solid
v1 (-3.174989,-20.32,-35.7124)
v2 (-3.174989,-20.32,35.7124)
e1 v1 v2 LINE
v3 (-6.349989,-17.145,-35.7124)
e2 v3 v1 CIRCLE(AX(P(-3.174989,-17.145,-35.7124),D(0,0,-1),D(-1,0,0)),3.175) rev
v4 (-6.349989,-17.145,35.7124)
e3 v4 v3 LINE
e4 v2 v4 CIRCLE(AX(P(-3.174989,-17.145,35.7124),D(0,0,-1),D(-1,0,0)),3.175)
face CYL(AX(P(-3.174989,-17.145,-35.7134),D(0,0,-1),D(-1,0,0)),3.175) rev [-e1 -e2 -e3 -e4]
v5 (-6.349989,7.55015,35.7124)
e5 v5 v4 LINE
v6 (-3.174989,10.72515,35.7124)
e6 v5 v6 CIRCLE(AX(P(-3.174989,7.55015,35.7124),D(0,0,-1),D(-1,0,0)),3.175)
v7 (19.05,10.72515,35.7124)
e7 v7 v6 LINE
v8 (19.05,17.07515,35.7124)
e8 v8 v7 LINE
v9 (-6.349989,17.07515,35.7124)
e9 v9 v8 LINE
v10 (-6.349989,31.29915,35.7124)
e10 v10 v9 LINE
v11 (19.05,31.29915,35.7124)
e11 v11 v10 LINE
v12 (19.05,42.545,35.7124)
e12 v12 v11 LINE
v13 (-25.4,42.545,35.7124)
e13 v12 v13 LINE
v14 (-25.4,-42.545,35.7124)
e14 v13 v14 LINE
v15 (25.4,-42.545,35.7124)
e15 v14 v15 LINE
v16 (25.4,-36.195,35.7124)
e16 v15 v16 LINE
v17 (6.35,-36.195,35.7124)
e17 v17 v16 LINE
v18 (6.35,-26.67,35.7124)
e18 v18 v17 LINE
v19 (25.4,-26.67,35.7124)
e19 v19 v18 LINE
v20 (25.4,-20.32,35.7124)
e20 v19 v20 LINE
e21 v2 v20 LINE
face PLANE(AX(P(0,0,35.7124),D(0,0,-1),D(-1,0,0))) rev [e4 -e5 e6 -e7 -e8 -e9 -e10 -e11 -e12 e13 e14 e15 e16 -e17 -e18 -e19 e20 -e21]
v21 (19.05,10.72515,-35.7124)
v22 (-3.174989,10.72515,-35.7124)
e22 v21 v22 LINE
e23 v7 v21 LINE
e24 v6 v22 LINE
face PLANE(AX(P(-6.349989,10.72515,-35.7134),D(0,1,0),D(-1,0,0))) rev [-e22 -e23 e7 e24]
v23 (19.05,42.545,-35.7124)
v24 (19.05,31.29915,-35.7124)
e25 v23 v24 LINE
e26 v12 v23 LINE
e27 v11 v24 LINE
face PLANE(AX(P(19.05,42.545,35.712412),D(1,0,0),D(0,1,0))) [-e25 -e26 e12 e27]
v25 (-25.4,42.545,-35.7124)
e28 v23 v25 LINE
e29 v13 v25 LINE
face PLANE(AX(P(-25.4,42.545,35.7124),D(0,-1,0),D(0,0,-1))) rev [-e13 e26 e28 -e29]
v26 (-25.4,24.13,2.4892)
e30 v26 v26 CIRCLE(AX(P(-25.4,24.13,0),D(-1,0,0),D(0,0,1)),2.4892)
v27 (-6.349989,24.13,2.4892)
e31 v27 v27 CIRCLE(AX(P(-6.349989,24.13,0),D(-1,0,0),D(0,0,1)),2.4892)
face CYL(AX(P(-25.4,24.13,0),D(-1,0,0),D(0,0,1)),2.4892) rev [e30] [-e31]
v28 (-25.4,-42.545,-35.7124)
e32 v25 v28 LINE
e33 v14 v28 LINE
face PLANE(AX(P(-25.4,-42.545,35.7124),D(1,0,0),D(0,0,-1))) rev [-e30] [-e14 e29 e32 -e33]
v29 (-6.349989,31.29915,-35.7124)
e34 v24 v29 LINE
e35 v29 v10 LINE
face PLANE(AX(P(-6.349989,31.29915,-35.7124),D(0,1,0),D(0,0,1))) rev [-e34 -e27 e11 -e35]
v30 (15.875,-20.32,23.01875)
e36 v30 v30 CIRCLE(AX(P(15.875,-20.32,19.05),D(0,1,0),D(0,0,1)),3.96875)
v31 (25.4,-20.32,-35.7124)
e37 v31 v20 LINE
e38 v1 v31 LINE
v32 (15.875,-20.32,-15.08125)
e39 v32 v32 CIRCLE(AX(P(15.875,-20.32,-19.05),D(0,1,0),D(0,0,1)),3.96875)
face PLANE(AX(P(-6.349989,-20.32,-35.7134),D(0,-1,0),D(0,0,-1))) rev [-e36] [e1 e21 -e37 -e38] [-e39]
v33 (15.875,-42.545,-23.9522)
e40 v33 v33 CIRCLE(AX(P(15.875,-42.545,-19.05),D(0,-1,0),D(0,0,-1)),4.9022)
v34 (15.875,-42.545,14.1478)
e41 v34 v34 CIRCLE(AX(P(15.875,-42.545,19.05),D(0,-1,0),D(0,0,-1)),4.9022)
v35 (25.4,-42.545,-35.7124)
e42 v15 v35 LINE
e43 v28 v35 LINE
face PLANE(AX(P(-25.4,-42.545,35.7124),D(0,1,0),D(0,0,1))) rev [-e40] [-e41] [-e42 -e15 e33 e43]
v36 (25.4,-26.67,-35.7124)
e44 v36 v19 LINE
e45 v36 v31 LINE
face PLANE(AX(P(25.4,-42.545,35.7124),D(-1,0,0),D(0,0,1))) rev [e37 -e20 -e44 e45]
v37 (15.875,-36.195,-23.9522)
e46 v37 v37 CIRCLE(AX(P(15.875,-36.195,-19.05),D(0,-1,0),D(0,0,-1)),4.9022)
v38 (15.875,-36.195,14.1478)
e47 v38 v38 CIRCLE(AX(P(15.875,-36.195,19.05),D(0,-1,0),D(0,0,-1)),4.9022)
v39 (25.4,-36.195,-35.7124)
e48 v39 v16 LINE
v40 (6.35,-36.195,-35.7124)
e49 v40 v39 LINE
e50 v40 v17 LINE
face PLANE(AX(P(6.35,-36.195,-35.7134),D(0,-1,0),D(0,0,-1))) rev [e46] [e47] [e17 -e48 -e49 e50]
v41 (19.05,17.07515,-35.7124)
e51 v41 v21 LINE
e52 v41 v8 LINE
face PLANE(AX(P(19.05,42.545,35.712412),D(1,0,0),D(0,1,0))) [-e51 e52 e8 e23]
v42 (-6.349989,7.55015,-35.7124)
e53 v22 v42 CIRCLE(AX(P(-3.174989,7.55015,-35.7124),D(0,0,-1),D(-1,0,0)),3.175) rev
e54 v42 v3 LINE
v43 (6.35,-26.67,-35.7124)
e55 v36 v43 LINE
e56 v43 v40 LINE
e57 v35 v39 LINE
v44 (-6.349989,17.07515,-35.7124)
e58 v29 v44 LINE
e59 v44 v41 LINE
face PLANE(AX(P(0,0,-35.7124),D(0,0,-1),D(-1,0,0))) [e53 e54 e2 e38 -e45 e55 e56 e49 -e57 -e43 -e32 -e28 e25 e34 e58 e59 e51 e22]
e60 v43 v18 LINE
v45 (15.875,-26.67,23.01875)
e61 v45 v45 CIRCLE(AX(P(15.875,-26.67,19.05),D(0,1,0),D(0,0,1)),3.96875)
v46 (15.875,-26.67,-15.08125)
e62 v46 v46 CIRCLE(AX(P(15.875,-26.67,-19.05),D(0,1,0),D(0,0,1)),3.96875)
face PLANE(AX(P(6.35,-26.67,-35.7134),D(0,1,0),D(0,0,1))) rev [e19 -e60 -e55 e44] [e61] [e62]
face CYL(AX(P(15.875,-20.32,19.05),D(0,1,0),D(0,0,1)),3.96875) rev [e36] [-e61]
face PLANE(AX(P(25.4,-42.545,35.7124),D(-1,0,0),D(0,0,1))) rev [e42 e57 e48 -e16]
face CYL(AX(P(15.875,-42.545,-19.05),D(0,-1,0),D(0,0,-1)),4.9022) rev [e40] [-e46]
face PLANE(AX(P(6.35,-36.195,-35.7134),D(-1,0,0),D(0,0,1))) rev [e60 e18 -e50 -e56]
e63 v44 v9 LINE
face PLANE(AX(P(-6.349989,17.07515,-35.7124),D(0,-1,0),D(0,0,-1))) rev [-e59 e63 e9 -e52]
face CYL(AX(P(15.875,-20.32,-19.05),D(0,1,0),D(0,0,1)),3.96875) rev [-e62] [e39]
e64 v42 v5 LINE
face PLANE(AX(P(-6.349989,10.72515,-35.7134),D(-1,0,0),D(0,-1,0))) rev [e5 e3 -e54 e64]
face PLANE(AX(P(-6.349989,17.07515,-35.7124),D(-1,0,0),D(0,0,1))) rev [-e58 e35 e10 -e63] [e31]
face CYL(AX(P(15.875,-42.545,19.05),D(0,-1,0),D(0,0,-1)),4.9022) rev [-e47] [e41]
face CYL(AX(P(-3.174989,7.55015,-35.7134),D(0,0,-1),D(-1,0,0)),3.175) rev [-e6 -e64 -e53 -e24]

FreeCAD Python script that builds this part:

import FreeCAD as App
import Part
import Sketcher

V = App.Vector
Q = App.Units.Quantity


def edges_at(feature, points):
    """Names of the edges that pass closest to the given points."""
    edges = feature.Shape.Edges
    near = lambda p: min(range(len(edges)), key=lambda i: edges[i].distToShape(Part.Vertex(*p))[0])
    return sorted({f"Edge{near(p) + 1}" for p in points})

doc = App.newDocument("Part")
body = doc.addObject("PartDesign::Body", "Body")

# Sketch on XY plane
sketch1 = body.newObject("Sketcher::SketchObject", "Sketch")
sketch1.AttachmentSupport = (doc.getObject("XY_Plane"), [""])
sketch1.MapMode = "FlatFace"
sketch1.addGeometry(Part.LineSegment(V(-25, 43, 0), V(-25, -43, 0)), False)
sketch1.addGeometry(Part.LineSegment(V(-25, -43, 0), V(25, -43, 0)), False)
sketch1.addGeometry(Part.LineSegment(V(25, -43, 0), V(25, 43, 0)), False)
sketch1.addGeometry(Part.LineSegment(V(25, 43, 0), V(-25, 43, 0)), False)
sketch1.addConstraint(Sketcher.Constraint("Coincident", 0, 2, 1, 1))
sketch1.addConstraint(Sketcher.Constraint("Coincident", 1, 2, 2, 1))
sketch1.addConstraint(Sketcher.Constraint("Coincident", 2, 2, 3, 1))
sketch1.addConstraint(Sketcher.Constraint("Coincident", 3, 2, 0, 1))
sketch1.addConstraint(Sketcher.Constraint("Vertical", 0))
sketch1.addConstraint(Sketcher.Constraint("Horizontal", 1))
sketch1.addConstraint(Sketcher.Constraint("Vertical", 2))
sketch1.addConstraint(Sketcher.Constraint("Horizontal", 3))
sketch1.addConstraint(Sketcher.Constraint("Symmetric", 0, 2, 2, 2, -1, 1))
sketch1.addConstraint(Sketcher.Constraint("DistanceX", 1, 1, 1, 2, Q("2 in")))
sketch1.addConstraint(Sketcher.Constraint("DistanceY", 0, 2, 0, 1, Q("3.35 in")))
pad1 = body.newObject("PartDesign::Pad", "Pad")
pad1.Profile = sketch1
pad1.Length = Q("2.812 in")
pad1.Midplane = True

# Sketch on XY plane
sketch2 = body.newObject("Sketcher::SketchObject", "Sketch001")
sketch2.AttachmentSupport = (doc.getObject("XY_Plane"), [""])
sketch2.MapMode = "FlatFace"
sketch2.AttachmentOffset = App.Placement(V(0, 0, 1.406 * 25.4), App.Rotation())
sketch2.addGeometry(Part.LineSegment(V(-6, 11, 0), V(-6, -20, 0)), False)
sketch2.addGeometry(Part.LineSegment(V(-6, -20, 0), V(25, -20, 0)), False)
sketch2.addGeometry(Part.LineSegment(V(25, -20, 0), V(25, 11, 0)), False)
sketch2.addGeometry(Part.LineSegment(V(25, 11, 0), V(-6, 11, 0)), False)
sketch2.addConstraint(Sketcher.Constraint("Coincident", 0, 2, 1, 1))
sketch2.addConstraint(Sketcher.Constraint("Coincident", 1, 2, 2, 1))
sketch2.addConstraint(Sketcher.Constraint("Coincident", 2, 2, 3, 1))
sketch2.addConstraint(Sketcher.Constraint("Coincident", 3, 2, 0, 1))
sketch2.addConstraint(Sketcher.Constraint("Vertical", 0))
sketch2.addConstraint(Sketcher.Constraint("Horizontal", 1))
sketch2.addConstraint(Sketcher.Constraint("Vertical", 2))
sketch2.addConstraint(Sketcher.Constraint("Horizontal", 3))
sketch2.addConstraint(Sketcher.Constraint("DistanceX", -1, 1, 1, 2, Q("1 in")))
sketch2.addConstraint(Sketcher.Constraint("DistanceY", 0, 2, -1, 1, Q("0.8 in")))
sketch2.addConstraint(Sketcher.Constraint("DistanceX", 1, 1, 1, 2, 31.749989))
sketch2.addConstraint(Sketcher.Constraint("DistanceY", 0, 2, 0, 1, 31.04515))
pocket1 = body.newObject("PartDesign::Pocket", "Pocket")
pocket1.Profile = sketch2
pocket1.Type = "UpToFirst"

# Sketch on XY plane
sketch3 = body.newObject("Sketcher::SketchObject", "Sketch002")
sketch3.AttachmentSupport = (doc.getObject("XY_Plane"), [""])
sketch3.MapMode = "FlatFace"
sketch3.AttachmentOffset = App.Placement(V(0, 0, 1.406 * 25.4), App.Rotation())
sketch3.addGeometry(Part.LineSegment(V(-6, 31, 0), V(-6, 17, 0)), False)
sketch3.addGeometry(Part.LineSegment(V(-6, 17, 0), V(25, 17, 0)), False)
sketch3.addGeometry(Part.LineSegment(V(25, 17, 0), V(25, 31, 0)), False)
sketch3.addGeometry(Part.LineSegment(V(25, 31, 0), V(-6, 31, 0)), False)
sketch3.addConstraint(Sketcher.Constraint("Coincident", 0, 2, 1, 1))
sketch3.addConstraint(Sketcher.Constraint("Coincident", 1, 2, 2, 1))
sketch3.addConstraint(Sketcher.Constraint("Coincident", 2, 2, 3, 1))
sketch3.addConstraint(Sketcher.Constraint("Coincident", 3, 2, 0, 1))
sketch3.addConstraint(Sketcher.Constraint("Vertical", 0))
sketch3.addConstraint(Sketcher.Constraint("Horizontal", 1))
sketch3.addConstraint(Sketcher.Constraint("Vertical", 2))
sketch3.addConstraint(Sketcher.Constraint("Horizontal", 3))
sketch3.addConstraint(Sketcher.Constraint("DistanceX", -1, 1, 1, 2, Q("1 in")))
sketch3.addConstraint(Sketcher.Constraint("DistanceY", 0, 2, 0, 1, Q("0.56 in")))
sketch3.addConstraint(Sketcher.Constraint("DistanceX", 1, 1, 1, 2, 31.749989))
sketch3.addConstraint(Sketcher.Constraint("DistanceY", -1, 1, 0, 2, 17.07515))
pocket2 = body.newObject("PartDesign::Pocket", "Pocket001")
pocket2.Profile = sketch3
pocket2.Type = "ThroughAll"

# Sketch on XY plane
sketch4 = body.newObject("Sketcher::SketchObject", "Sketch003")
sketch4.AttachmentSupport = (doc.getObject("XY_Plane"), [""])
sketch4.MapMode = "FlatFace"
sketch4.AttachmentOffset = App.Placement(V(0, 0, 1.406 * 25.4), App.Rotation())
sketch4.addGeometry(Part.LineSegment(V(6, -27, 0), V(6, -36, 0)), False)
sketch4.addGeometry(Part.LineSegment(V(6, -36, 0), V(25, -36, 0)), False)
sketch4.addGeometry(Part.LineSegment(V(25, -36, 0), V(25, -27, 0)), False)
sketch4.addGeometry(Part.LineSegment(V(25, -27, 0), V(6, -27, 0)), False)
sketch4.addConstraint(Sketcher.Constraint("Coincident", 0, 2, 1, 1))
sketch4.addConstraint(Sketcher.Constraint("Coincident", 1, 2, 2, 1))
sketch4.addConstraint(Sketcher.Constraint("Coincident", 2, 2, 3, 1))
sketch4.addConstraint(Sketcher.Constraint("Coincident", 3, 2, 0, 1))
sketch4.addConstraint(Sketcher.Constraint("Vertical", 0))
sketch4.addConstraint(Sketcher.Constraint("Horizontal", 1))
sketch4.addConstraint(Sketcher.Constraint("Vertical", 2))
sketch4.addConstraint(Sketcher.Constraint("Horizontal", 3))
sketch4.addConstraint(Sketcher.Constraint("DistanceX", -1, 1, 1, 2, Q("1 in")))
sketch4.addConstraint(Sketcher.Constraint("DistanceX", 1, 1, 1, 2, Q("0.75 in")))
sketch4.addConstraint(Sketcher.Constraint("DistanceY", 0, 2, 0, 1, Q("0.375 in")))
sketch4.addConstraint(Sketcher.Constraint("DistanceY", 2, 2, -1, 1, Q("1.05 in")))
pocket3 = body.newObject("PartDesign::Pocket", "Pocket002")
pocket3.Profile = sketch4
pocket3.Type = "UpToFirst"

# Sketch on XY plane
sketch5 = body.newObject("Sketcher::SketchObject", "Sketch004")
sketch5.AttachmentSupport = (doc.getObject("XY_Plane"), [""])
sketch5.MapMode = "FlatFace"
sketch5.AttachmentOffset = App.Placement(V(0, 0, -1.406 * 25.4), App.Rotation())
sketch5.addGeometry(Part.LineSegment(V(19, 43, 0), V(19, 11, 0)), False)
sketch5.addGeometry(Part.LineSegment(V(19, 11, 0), V(25, 11, 0)), False)
sketch5.addGeometry(Part.LineSegment(V(25, 11, 0), V(25, 43, 0)), False)
sketch5.addGeometry(Part.LineSegment(V(25, 43, 0), V(19, 43, 0)), False)
sketch5.addConstraint(Sketcher.Constraint("Coincident", 0, 2, 1, 1))
sketch5.addConstraint(Sketcher.Constraint("Coincident", 1, 2, 2, 1))
sketch5.addConstraint(Sketcher.Constraint("Coincident", 2, 2, 3, 1))
sketch5.addConstraint(Sketcher.Constraint("Coincident", 3, 2, 0, 1))
sketch5.addConstraint(Sketcher.Constraint("Vertical", 0))
sketch5.addConstraint(Sketcher.Constraint("Horizontal", 1))
sketch5.addConstraint(Sketcher.Constraint("Vertical", 2))
sketch5.addConstraint(Sketcher.Constraint("Horizontal", 3))
sketch5.addConstraint(Sketcher.Constraint("DistanceX", -1, 1, 1, 2, Q("1 in")))
sketch5.addConstraint(Sketcher.Constraint("DistanceX", 1, 1, 1, 2, Q("0.25 in")))
sketch5.addConstraint(Sketcher.Constraint("DistanceY", -1, 1, 2, 2, Q("1.675 in")))
sketch5.addConstraint(Sketcher.Constraint("DistanceY", 0, 2, 0, 1, 31.81985))
pocket4 = body.newObject("PartDesign::Pocket", "Pocket003")
pocket4.Profile = sketch5
pocket4.Length = Q("2.812 in")
pocket4.Reversed = True

# Sketch on YZ plane
sketch6 = body.newObject("Sketcher::SketchObject", "Sketch005")
sketch6.AttachmentSupport = (doc.getObject("YZ_Plane"), [""])
sketch6.MapMode = "FlatFace"
sketch6.AttachmentOffset = App.Placement(V(0, 0, -1 * 25.4), App.Rotation())
sketch6.addGeometry(Part.Circle(V(24.1, 0, 0), V(0, 0, 1), 2.5), False)
sketch6.addConstraint(Sketcher.Constraint("PointOnObject", 0, 3, -1))
sketch6.addConstraint(Sketcher.Constraint("Diameter", 0, Q("0.196 in")))
sketch6.addConstraint(Sketcher.Constraint("DistanceX", -1, 1, 0, 3, Q("0.95 in")))
doc.recompute()
hole = body.newObject("PartDesign::Hole", "Hole")
hole.Profile = sketch6
hole.ThreadType = "None"
hole.Diameter = Q("0.196 in")
hole.DepthType = "ThroughAll"
hole.Reversed = True

# Sketch on XZ plane
sketch7 = body.newObject("Sketcher::SketchObject", "Sketch006")
sketch7.AttachmentSupport = (doc.getObject("XZ_Plane"), [""])
sketch7.MapMode = "FlatFace"
sketch7.AttachmentOffset = App.Placement(V(0, 0, 1.675 * 25.4), App.Rotation())
sketch7.addGeometry(Part.Circle(V(15.9, 19.1, 0), V(0, 0, 1), 4.9), False)
sketch7.addGeometry(Part.Circle(V(15.9, -19.1, 0), V(0, 0, 1), 4.9), False)
sketch7.addConstraint(Sketcher.Constraint("Equal", 0, 1))
sketch7.addConstraint(Sketcher.Constraint("Symmetric", 0, 3, 1, 3, -1))
sketch7.addConstraint(Sketcher.Constraint("Diameter", 0, Q("0.386 in")))
sketch7.addConstraint(Sketcher.Constraint("DistanceY", 1, 3, 0, 3, Q("1.5 in")))
sketch7.addConstraint(Sketcher.Constraint("DistanceX", -1, 1, 0, 3, Q("0.625 in")))
doc.recompute()
hole2 = body.newObject("PartDesign::Hole", "Hole001")
hole2.Profile = sketch7
hole2.ThreadType = "None"
hole2.Diameter = Q("0.386 in")
hole2.DepthType = "Dimension"
hole2.Depth = Q("0.25 in")
hole2.DrillPoint = "Flat"

# Sketch on XZ plane
sketch8 = body.newObject("Sketcher::SketchObject", "Sketch007")
sketch8.AttachmentSupport = (doc.getObject("XZ_Plane"), [""])
sketch8.MapMode = "FlatFace"
sketch8.AttachmentOffset = App.Placement(V(0, 0, 0.8 * 25.4), App.Rotation())
sketch8.addGeometry(Part.Circle(V(15.9, 19.1, 0), V(0, 0, 1), 4), False)
sketch8.addGeometry(Part.Circle(V(15.9, -19.1, 0), V(0, 0, 1), 4), False)
sketch8.addConstraint(Sketcher.Constraint("Equal", 0, 1))
sketch8.addConstraint(Sketcher.Constraint("Symmetric", 0, 3, 1, 3, -1))
sketch8.addConstraint(Sketcher.Constraint("Diameter", 0, Q("0.3125 in")))
sketch8.addConstraint(Sketcher.Constraint("DistanceY", 1, 3, 0, 3, Q("1.5 in")))
sketch8.addConstraint(Sketcher.Constraint("DistanceX", -1, 1, 0, 3, Q("0.625 in")))
doc.recompute()
hole3 = body.newObject("PartDesign::Hole", "Hole002")
hole3.Profile = sketch8
hole3.ThreadType = "None"
hole3.Diameter = Q("0.3125 in")
hole3.DepthType = "Dimension"
hole3.Depth = Q("0.25 in")
hole3.DrillPoint = "Flat"
hole3.Reversed = True
doc.recompute()

fillet = body.newObject("PartDesign::Fillet", "Fillet")
fillet.Base = (hole3, edges_at(hole3, [(-6.35, -20.32, 0), (-6.35, 10.725, 0)]))
fillet.Radius = Q("0.125 in")

doc.recompute()
